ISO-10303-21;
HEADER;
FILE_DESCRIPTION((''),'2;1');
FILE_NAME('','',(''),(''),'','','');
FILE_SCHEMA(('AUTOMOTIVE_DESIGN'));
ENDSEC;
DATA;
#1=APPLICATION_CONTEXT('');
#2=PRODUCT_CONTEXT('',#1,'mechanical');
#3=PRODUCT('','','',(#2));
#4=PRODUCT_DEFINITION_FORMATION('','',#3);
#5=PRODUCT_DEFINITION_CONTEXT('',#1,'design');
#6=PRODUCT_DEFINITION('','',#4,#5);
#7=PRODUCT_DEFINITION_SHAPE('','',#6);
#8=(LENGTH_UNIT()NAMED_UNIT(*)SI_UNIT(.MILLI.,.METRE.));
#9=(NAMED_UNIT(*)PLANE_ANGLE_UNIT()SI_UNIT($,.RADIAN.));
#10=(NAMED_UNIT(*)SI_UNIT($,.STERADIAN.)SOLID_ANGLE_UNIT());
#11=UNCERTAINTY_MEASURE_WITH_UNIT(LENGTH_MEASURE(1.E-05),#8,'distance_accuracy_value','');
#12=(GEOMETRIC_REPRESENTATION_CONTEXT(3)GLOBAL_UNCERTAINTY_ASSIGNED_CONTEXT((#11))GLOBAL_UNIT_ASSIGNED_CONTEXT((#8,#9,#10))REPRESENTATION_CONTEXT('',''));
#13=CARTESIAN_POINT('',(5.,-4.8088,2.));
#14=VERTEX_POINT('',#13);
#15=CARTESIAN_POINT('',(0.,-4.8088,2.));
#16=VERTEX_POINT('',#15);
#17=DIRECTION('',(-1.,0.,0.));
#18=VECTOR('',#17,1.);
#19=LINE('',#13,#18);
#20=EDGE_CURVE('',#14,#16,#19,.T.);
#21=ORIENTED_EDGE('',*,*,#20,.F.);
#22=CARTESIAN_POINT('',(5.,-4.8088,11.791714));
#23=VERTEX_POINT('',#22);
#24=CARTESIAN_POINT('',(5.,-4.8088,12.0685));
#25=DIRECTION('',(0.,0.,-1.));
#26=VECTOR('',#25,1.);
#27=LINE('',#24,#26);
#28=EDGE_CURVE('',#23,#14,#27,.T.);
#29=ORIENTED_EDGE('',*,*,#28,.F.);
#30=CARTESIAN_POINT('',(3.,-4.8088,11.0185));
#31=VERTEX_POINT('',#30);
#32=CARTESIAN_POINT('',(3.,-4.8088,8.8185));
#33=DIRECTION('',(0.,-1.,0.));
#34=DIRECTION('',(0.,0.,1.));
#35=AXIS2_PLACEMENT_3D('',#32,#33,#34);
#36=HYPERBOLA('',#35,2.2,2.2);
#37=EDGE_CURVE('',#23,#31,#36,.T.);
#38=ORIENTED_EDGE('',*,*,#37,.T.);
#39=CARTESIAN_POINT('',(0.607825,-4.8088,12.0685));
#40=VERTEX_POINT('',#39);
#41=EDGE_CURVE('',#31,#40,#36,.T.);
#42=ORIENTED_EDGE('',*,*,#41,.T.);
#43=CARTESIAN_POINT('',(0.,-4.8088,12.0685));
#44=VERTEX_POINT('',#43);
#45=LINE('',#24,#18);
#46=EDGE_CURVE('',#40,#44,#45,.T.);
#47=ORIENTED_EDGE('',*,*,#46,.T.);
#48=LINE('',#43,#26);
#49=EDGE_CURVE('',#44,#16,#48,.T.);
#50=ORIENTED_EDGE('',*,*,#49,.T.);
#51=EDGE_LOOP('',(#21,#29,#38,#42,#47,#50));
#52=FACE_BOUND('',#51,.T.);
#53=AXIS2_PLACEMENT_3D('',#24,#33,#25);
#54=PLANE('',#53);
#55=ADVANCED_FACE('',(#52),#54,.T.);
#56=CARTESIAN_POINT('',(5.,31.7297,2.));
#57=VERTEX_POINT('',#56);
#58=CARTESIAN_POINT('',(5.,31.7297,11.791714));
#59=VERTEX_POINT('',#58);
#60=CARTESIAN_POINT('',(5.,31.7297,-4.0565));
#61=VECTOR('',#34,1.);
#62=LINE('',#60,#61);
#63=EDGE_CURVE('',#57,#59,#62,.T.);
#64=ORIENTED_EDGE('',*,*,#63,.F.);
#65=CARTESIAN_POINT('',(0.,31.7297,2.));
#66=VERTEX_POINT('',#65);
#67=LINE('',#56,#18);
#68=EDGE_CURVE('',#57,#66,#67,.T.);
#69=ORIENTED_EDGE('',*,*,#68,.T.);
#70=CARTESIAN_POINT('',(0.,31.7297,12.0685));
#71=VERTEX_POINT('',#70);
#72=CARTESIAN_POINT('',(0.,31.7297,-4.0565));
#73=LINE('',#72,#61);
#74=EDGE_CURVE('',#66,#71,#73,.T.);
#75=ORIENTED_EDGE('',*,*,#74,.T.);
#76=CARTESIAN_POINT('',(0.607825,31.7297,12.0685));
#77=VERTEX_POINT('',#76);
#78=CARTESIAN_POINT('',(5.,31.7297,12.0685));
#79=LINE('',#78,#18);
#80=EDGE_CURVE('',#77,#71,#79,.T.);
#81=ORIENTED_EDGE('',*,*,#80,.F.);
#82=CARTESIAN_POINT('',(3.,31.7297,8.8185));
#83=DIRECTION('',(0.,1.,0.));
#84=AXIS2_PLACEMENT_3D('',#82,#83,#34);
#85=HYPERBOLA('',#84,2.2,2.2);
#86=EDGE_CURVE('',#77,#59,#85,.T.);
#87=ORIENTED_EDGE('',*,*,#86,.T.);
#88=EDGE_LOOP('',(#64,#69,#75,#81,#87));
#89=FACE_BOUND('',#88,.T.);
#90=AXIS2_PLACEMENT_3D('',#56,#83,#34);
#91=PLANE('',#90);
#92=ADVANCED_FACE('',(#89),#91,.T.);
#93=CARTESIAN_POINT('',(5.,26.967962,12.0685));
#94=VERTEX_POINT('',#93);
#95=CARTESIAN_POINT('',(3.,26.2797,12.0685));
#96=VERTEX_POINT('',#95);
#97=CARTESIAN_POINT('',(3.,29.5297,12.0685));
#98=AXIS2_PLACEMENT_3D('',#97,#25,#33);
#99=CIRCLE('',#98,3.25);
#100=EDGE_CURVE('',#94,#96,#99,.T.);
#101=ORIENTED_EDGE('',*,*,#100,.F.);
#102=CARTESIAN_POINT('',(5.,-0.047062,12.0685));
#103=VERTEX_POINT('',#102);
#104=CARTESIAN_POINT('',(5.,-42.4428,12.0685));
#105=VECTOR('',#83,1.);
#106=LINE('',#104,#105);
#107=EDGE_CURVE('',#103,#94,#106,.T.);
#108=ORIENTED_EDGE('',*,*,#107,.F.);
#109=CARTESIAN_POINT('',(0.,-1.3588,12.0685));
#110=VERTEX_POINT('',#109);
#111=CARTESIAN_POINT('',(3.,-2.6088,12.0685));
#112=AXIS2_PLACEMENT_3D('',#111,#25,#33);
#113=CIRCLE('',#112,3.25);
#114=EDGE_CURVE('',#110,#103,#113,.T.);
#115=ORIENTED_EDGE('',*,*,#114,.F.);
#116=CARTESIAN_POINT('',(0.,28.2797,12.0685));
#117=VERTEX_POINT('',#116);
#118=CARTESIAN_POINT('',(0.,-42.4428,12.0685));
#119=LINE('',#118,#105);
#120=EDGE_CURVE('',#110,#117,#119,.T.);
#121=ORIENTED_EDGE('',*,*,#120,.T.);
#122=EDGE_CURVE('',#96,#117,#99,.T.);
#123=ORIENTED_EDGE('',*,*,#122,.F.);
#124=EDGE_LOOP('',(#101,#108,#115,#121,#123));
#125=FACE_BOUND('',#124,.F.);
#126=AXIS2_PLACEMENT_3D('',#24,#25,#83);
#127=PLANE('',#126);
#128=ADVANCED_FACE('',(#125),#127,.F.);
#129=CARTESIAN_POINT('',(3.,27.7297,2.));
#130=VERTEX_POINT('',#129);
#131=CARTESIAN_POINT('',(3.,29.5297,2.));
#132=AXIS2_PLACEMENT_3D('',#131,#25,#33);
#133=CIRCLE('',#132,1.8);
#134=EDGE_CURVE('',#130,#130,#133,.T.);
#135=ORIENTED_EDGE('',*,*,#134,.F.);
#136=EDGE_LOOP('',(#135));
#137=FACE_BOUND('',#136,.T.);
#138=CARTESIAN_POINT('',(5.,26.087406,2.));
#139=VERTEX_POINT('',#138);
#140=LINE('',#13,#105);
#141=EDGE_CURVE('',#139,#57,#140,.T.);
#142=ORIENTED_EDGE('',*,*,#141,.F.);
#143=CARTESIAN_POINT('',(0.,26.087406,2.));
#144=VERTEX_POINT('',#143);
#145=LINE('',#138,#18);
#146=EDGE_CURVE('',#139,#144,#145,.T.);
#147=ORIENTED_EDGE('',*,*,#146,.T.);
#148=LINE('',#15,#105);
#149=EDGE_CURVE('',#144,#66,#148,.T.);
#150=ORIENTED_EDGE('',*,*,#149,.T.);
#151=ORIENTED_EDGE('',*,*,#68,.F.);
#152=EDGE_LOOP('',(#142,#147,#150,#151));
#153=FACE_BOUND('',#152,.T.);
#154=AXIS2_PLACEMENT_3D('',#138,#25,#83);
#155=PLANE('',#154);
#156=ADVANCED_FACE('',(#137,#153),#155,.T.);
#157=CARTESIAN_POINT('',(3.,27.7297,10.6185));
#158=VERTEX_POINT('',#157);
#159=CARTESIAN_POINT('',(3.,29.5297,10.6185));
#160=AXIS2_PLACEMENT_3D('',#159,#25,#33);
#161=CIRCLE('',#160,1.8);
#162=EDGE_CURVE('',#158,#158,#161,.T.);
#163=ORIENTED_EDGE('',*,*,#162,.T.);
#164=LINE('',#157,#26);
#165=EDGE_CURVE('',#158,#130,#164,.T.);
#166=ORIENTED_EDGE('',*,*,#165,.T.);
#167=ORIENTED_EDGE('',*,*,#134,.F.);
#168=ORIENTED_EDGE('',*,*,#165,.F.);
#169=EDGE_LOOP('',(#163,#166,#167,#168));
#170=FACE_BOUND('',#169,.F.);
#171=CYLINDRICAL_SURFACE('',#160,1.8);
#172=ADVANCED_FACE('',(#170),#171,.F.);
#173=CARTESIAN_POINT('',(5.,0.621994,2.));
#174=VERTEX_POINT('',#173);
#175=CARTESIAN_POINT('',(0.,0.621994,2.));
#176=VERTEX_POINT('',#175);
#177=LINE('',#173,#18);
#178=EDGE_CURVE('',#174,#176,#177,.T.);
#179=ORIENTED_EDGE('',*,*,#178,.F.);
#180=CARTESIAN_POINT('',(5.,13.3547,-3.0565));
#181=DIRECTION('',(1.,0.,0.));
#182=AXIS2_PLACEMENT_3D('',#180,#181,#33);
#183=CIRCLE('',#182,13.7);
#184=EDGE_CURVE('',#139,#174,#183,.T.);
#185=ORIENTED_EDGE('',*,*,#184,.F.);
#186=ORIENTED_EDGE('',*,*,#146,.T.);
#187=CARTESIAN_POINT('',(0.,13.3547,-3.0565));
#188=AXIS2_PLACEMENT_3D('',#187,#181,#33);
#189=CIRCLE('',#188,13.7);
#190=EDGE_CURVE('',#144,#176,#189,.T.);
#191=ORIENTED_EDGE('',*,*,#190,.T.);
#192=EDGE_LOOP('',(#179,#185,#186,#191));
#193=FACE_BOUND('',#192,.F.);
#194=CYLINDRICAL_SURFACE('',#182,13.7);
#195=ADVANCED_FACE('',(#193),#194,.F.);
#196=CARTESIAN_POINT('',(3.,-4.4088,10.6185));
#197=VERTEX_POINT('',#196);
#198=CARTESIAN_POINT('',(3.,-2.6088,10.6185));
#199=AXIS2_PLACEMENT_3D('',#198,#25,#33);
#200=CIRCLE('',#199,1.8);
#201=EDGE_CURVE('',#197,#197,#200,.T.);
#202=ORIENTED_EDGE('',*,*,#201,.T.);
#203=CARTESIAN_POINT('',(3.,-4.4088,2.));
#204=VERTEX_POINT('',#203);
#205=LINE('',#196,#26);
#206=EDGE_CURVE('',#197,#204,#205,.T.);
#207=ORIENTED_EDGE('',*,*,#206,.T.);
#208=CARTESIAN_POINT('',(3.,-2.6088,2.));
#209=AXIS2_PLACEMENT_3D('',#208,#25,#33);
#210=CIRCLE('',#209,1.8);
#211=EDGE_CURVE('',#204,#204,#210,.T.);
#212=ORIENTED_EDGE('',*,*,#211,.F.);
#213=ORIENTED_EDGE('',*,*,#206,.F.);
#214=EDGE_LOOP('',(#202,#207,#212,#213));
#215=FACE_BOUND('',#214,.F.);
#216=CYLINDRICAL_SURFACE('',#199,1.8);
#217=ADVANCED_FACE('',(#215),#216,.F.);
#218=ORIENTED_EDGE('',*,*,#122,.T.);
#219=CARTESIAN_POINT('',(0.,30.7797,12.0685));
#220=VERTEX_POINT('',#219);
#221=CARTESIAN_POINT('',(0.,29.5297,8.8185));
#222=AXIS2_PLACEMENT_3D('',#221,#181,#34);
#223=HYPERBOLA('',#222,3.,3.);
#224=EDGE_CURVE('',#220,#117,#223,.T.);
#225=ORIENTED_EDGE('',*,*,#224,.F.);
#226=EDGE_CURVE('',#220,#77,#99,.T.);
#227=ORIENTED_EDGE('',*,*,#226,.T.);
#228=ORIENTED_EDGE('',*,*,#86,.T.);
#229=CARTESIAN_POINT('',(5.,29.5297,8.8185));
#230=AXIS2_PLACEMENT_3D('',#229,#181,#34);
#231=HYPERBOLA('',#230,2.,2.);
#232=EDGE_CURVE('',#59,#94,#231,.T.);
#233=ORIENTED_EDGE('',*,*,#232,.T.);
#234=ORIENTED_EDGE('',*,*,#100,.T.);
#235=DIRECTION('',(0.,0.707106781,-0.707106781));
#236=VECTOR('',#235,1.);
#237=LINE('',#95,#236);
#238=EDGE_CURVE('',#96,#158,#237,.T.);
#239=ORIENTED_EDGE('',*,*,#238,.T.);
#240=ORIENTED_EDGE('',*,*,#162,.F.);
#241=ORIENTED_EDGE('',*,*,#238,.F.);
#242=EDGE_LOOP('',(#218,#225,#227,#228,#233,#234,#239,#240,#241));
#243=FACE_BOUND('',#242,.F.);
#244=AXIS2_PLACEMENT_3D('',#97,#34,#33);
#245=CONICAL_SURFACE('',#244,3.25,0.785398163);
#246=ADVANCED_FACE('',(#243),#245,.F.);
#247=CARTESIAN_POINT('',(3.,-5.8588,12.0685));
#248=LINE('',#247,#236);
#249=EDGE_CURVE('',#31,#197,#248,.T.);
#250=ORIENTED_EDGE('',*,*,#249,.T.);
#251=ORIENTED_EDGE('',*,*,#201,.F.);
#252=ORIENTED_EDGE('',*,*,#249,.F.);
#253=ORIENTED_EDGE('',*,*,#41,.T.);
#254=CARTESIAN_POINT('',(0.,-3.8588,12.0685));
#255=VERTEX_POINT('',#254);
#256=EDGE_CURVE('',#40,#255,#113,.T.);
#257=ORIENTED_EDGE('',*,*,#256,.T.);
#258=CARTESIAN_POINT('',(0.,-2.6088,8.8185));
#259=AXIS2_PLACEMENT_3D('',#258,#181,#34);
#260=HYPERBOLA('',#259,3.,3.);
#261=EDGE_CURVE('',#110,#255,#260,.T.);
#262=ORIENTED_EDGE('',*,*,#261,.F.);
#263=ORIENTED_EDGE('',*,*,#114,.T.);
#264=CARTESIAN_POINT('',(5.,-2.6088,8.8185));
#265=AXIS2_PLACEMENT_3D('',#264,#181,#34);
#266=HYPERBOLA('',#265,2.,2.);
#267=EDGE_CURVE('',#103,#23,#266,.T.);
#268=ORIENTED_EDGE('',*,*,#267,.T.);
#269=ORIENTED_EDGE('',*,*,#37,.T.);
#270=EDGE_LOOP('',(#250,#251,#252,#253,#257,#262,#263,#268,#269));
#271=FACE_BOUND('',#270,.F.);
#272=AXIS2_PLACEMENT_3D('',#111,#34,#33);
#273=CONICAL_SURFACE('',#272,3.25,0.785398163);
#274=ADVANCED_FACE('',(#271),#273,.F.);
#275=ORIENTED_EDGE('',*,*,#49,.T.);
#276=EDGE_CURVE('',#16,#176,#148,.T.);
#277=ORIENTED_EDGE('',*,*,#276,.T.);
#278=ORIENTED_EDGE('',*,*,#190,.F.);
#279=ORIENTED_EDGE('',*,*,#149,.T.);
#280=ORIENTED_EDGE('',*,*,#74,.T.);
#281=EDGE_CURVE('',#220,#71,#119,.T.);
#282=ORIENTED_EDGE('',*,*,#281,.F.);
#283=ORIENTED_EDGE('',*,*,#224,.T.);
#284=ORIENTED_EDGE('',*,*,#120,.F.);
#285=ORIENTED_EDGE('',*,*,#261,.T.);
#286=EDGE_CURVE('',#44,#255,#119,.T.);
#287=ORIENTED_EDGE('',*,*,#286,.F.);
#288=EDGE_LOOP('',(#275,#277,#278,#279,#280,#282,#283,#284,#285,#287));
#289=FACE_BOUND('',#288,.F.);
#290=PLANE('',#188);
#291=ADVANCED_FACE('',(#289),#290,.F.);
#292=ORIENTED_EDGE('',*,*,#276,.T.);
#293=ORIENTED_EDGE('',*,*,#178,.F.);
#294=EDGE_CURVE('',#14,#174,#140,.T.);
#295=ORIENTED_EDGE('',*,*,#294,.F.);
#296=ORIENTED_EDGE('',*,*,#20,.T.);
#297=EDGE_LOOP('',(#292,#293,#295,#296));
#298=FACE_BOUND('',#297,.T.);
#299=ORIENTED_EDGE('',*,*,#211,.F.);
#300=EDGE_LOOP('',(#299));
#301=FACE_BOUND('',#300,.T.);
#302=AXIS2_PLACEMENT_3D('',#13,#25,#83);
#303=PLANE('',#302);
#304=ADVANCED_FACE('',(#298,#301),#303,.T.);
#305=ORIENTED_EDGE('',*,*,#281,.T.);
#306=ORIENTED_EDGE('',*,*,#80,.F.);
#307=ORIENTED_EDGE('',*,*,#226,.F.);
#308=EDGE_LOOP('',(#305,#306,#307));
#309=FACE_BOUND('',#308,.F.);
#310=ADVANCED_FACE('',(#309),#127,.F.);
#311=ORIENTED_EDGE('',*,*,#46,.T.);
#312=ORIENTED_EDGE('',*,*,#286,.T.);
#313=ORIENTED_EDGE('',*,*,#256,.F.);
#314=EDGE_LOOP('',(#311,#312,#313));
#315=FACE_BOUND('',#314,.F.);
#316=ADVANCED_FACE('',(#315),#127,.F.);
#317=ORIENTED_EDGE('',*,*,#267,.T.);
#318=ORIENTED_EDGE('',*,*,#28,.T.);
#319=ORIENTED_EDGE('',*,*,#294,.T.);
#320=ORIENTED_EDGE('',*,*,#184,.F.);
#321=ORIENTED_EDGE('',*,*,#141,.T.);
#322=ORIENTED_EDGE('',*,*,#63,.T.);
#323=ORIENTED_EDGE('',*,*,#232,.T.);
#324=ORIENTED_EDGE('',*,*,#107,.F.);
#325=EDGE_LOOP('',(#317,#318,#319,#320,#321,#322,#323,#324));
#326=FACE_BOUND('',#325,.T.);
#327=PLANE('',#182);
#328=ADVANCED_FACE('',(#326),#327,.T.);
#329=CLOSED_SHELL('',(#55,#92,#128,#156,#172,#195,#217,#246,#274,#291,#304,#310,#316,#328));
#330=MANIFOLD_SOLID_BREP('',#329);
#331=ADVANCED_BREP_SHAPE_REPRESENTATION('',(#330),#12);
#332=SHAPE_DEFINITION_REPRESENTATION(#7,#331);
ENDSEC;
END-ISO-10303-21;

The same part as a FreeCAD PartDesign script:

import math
import FreeCAD as App
import Part
import Sketcher
from FreeCAD import Vector
Q = App.Units.Quantity

doc = App.newDocument("Part")
params = doc.addObject("Spreadsheet::Sheet", "Params")
for row, (alias, value) in enumerate([
    ("sketch1_radius", "13.7 mm"),
    ("pad1_length", "5 mm"),
    ("sketch2_diameter", "3.6 mm"),
    ("hole_diameter", "3.6 mm"),
    ("hole_csink_diameter", "6.5 mm"),
], start=1):
    params.set(f"A{row}", alias)
    params.set(f"B{row}", "=" + value)
    params.setAlias(f"B{row}", alias)

body = doc.addObject("PartDesign::Body", "Body")

sketch1 = body.newObject("Sketcher::SketchObject", "Sketch")
sketch1.AttachmentSupport = (doc.getObject("YZ_Plane"), [""])
sketch1.MapMode = "FlatFace"
sketch1.AttachmentOffset = App.Placement(Vector(0, 0, 5), App.Rotation())
sketch1.addGeometry(Part.LineSegment(Vector(-4.8088, 2, 0), Vector(0.621994, 2, 0)), False)
sketch1.addGeometry(Part.ArcOfCircle(Part.Circle(Vector(13.3547, -3.0565, 0), Vector(0, 0, 1), 13.7), math.radians(21.659358), math.radians(158.340642)), False)
sketch1.addGeometry(Part.LineSegment(Vector(26.087406, 2, 0), Vector(31.7297, 2, 0)), False)
sketch1.addGeometry(Part.LineSegment(Vector(31.7297, 2, 0), Vector(31.7297, 12.0685, 0)), False)
sketch1.addGeometry(Part.LineSegment(Vector(31.7297, 12.0685, 0), Vector(-4.8088, 12.0685, 0)), False)
sketch1.addGeometry(Part.LineSegment(Vector(-4.8088, 12.0685, 0), Vector(-4.8088, 2, 0)), False)
sketch1.addConstraint(Sketcher.Constraint("Coincident", 0, 2, 1, 2))
sketch1.addConstraint(Sketcher.Constraint("Coincident", 1, 1, 2, 1))
sketch1.addConstraint(Sketcher.Constraint("Coincident", 2, 2, 3, 1))
sketch1.addConstraint(Sketcher.Constraint("Coincident", 3, 2, 4, 1))
sketch1.addConstraint(Sketcher.Constraint("Coincident", 4, 2, 5, 1))
sketch1.addConstraint(Sketcher.Constraint("Coincident", 5, 2, 0, 1))
sketch1.addConstraint(Sketcher.Constraint("Horizontal", 0))
sketch1.addConstraint(Sketcher.Constraint("Horizontal", 2))
sketch1.addConstraint(Sketcher.Constraint("Vertical", 3))
sketch1.addConstraint(Sketcher.Constraint("Horizontal", 4))
sketch1.addConstraint(Sketcher.Constraint("Vertical", 5))
sketch1.addConstraint(Sketcher.Constraint("Horizontal", 0, 2, 1, 1))
sketch1.addConstraint(Sketcher.Constraint("DistanceY", -1, 1, 0, 2, Q("2 mm")))
sketch1.addConstraint(Sketcher.Constraint("Radius", 1, Q("13.7 mm")))
sketch1.addConstraint(Sketcher.Constraint("DistanceX", 0, 1, 0, 2, Q("5.4308 mm")))
sketch1.addConstraint(Sketcher.Constraint("DistanceX", 2, 1, 2, 2, Q("5.6423 mm")))
sketch1.addConstraint(Sketcher.Constraint("DistanceX", 4, 2, 4, 1, Q("36.5385 mm")))
sketch1.addConstraint(Sketcher.Constraint("DistanceY", 3, 1, 3, 2, Q("10.0685 mm")))
sketch1.addConstraint(Sketcher.Constraint("DistanceX", -1, 1, 0, 2, Q("0.622 mm")))
sketch1.setExpression("Constraints[13]", "Params.sketch1_radius")
pad1 = body.newObject("PartDesign::Pad", "Pad")
pad1.Profile = sketch1
pad1.setExpression("Length", "Params.pad1_length")
pad1.Reversed = True

sketch2 = body.newObject("Sketcher::SketchObject", "Sketch001")
sketch2.AttachmentSupport = (doc.getObject("XY_Plane"), [""])
sketch2.MapMode = "FlatFace"
sketch2.AttachmentOffset = App.Placement(Vector(0, 0, 12.0685), App.Rotation())
sketch2.addGeometry(Part.Circle(Vector(3, -2.6088, 0), Vector(0, 0, 1), 1.8), False)
sketch2.addGeometry(Part.Circle(Vector(3, 29.5297, 0), Vector(0, 0, 1), 1.8), False)
sketch2.addConstraint(Sketcher.Constraint("Equal", 0, 1))
sketch2.addConstraint(Sketcher.Constraint("Vertical", 0, 3, 1, 3))
sketch2.addConstraint(Sketcher.Constraint("Diameter", 0, Q("3.6 mm")))
sketch2.addConstraint(Sketcher.Constraint("DistanceX", -1, 1, 0, 3, Q("3 mm")))
sketch2.addConstraint(Sketcher.Constraint("DistanceY", 0, 3, -1, 1, Q("2.6088 mm")))
sketch2.addConstraint(Sketcher.Constraint("DistanceY", -1, 1, 1, 3, Q("29.5297 mm")))
sketch2.setExpression("Constraints[2]", "Params.sketch2_diameter")
doc.recompute()
hole = body.newObject("PartDesign::Hole", "Hole")
hole.Profile = sketch2
hole.ThreadType = "None"
hole.setExpression("Diameter", "Params.hole_diameter")
hole.DepthType = "ThroughAll"
hole.HoleCutType = "Countersink"
hole.setExpression("HoleCutDiameter", "Params.hole_csink_diameter")
hole.HoleCutCountersinkAngle = 90

doc.recompute()
